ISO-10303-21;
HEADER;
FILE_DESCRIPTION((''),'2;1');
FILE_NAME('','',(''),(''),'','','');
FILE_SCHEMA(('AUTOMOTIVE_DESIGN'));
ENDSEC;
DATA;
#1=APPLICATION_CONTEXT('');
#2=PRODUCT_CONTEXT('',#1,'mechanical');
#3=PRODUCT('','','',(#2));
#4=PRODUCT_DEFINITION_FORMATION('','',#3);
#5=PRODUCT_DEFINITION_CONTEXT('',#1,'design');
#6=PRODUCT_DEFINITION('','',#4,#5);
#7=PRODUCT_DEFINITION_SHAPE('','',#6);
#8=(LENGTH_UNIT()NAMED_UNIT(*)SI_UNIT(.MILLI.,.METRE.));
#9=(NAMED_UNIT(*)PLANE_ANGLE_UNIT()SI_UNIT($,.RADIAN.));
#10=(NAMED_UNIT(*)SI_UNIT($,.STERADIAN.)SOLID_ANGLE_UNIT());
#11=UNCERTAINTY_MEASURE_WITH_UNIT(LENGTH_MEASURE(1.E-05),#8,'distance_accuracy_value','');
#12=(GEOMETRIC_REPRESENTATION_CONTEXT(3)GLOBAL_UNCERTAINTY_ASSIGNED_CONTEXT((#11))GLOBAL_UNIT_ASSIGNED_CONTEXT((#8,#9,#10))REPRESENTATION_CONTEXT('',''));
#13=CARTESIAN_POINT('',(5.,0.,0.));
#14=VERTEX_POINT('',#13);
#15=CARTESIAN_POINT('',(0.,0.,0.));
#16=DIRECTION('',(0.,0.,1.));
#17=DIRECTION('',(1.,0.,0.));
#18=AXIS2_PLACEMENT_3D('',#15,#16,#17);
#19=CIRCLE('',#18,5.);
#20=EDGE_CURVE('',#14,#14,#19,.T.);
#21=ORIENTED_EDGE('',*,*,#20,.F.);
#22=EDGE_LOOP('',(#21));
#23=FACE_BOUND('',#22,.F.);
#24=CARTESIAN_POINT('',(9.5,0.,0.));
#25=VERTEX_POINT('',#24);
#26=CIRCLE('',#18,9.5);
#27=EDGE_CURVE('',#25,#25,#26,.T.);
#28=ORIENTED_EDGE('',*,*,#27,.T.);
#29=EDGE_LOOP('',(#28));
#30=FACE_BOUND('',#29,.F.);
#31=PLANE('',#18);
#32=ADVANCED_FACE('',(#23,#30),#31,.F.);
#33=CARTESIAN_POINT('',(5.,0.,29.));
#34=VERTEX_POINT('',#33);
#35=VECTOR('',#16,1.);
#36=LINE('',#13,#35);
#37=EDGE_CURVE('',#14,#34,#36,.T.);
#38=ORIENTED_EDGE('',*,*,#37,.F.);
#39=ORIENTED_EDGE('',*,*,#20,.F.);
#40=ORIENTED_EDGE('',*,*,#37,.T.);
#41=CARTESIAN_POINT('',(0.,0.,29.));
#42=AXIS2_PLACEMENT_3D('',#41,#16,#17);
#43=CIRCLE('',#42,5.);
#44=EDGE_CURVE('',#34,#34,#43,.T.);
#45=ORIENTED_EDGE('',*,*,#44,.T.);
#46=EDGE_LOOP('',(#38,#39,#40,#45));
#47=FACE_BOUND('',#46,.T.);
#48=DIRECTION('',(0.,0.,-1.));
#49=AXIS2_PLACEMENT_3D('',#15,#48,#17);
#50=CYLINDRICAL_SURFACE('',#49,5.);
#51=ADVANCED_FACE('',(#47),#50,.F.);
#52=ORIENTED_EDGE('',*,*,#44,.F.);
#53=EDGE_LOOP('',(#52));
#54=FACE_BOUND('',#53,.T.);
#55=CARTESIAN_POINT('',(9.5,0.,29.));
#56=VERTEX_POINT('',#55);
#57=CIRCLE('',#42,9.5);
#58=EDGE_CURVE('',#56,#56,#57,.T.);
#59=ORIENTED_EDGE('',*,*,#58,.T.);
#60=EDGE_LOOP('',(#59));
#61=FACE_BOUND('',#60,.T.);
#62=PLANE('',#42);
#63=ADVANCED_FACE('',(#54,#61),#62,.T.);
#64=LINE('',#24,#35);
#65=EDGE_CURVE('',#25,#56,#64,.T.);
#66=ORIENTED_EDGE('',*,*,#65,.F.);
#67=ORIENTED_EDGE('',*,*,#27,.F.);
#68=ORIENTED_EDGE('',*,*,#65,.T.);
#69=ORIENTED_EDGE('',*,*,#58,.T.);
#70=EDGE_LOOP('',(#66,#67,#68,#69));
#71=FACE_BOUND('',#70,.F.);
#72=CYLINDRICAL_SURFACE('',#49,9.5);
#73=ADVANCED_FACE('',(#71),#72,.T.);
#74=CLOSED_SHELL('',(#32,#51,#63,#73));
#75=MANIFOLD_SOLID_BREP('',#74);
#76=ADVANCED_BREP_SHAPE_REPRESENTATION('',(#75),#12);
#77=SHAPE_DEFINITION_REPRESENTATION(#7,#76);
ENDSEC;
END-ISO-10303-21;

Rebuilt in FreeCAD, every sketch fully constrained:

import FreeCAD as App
import Part
import Sketcher
from FreeCAD import Vector

doc = App.newDocument("Part")
body = doc.addObject("PartDesign::Body", "Body")

# Sketch on XY plane
sketch1 = body.newObject("Sketcher::SketchObject", "Sketch")
sketch1.AttachmentSupport = (doc.getObject("XY_Plane"), [""])
sketch1.MapMode = "FlatFace"
sketch1.addGeometry(Part.Circle(Vector(0, 0, 0), Vector(0, 0, 1), 10), False)
sketch1.addGeometry(Part.Circle(Vector(0, 0, 0), Vector(0, 0, 1), 5), False)
sketch1.addConstraint(Sketcher.Constraint("Coincident", 0, 3, -1, 1))
sketch1.addConstraint(Sketcher.Constraint("Coincident", 1, 3, -1, 1))
sketch1.addConstraint(Sketcher.Constraint("Diameter", 0, 19.0))
sketch1.addConstraint(Sketcher.Constraint("Diameter", 1, 10.0))
pad1 = body.newObject("PartDesign::Pad", "Pad")
pad1.Profile = sketch1
pad1.Length = 29

doc.recompute()
